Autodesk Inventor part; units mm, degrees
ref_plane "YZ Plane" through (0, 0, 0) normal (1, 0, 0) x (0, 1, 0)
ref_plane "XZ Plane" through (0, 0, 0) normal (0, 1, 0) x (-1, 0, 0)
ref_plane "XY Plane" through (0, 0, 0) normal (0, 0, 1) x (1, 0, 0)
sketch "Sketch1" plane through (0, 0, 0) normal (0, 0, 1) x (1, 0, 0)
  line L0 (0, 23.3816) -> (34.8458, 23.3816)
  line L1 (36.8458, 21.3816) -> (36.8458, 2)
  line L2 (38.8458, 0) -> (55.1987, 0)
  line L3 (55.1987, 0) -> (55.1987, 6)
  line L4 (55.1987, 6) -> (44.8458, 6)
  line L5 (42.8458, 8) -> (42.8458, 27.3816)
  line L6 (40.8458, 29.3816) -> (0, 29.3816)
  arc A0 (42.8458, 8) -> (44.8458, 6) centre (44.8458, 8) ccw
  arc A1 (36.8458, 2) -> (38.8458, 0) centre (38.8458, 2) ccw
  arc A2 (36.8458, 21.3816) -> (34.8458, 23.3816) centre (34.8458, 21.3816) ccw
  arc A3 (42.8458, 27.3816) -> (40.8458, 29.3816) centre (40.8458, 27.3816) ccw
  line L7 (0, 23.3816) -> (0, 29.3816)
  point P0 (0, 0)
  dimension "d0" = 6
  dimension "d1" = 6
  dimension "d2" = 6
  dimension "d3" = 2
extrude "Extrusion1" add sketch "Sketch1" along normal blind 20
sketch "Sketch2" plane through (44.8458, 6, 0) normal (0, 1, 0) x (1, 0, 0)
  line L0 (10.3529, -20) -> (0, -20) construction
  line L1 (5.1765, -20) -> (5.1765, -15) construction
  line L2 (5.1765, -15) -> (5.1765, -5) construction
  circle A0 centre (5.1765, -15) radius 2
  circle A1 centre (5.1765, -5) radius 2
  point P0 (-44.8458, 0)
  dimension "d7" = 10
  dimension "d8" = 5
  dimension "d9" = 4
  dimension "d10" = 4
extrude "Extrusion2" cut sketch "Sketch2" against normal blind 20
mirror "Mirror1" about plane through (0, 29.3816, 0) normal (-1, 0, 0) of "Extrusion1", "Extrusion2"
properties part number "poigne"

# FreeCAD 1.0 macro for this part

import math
import FreeCAD as App
import Part
import Sketcher
from FreeCAD import Vector
Q = App.Units.Quantity

doc = App.newDocument("Part")
body = doc.addObject("PartDesign::Body", "Body")

# Sketch on XY plane
sketch1 = body.newObject("Sketcher::SketchObject", "Sketch")
sketch1.AttachmentSupport = (doc.getObject("XY_Plane"), [""])
sketch1.MapMode = "FlatFace"
sketch1.addGeometry([
    Part.LineSegment(Vector(0, 29.3816, 0), Vector(0, 23.3816, 0)),  # 0
    Part.LineSegment(Vector(0, 23.3816, 0), Vector(34.8458, 23.3816, 0)),  # 1
    Part.ArcOfCircle(Part.Circle(Vector(34.8458, 21.3816, 0), Vector(0, 0, 1), 2), math.radians(0), math.radians(90)),  # 2
    Part.LineSegment(Vector(36.8458, 21.3816, 0), Vector(36.8458, 2, 0)),  # 3
    Part.ArcOfCircle(Part.Circle(Vector(38.8458, 2, 0), Vector(0, 0, 1), 2), math.radians(180), math.radians(270)),  # 4
    Part.LineSegment(Vector(38.8458, 0, 0), Vector(55.1987, 0, 0)),  # 5
    Part.LineSegment(Vector(55.1987, 0, 0), Vector(55.1987, 6, 0)),  # 6
    Part.LineSegment(Vector(55.1987, 6, 0), Vector(44.8458, 6, 0)),  # 7
    Part.ArcOfCircle(Part.Circle(Vector(44.8458, 8, 0), Vector(0, 0, 1), 2), math.radians(180), math.radians(270)),  # 8
    Part.LineSegment(Vector(42.8458, 8, 0), Vector(42.8458, 27.3816, 0)),  # 9
    Part.ArcOfCircle(Part.Circle(Vector(40.8458, 27.3816, 0), Vector(0, 0, 1), 2), math.radians(0), math.radians(90)),  # 10
    Part.LineSegment(Vector(40.8458, 29.3816, 0), Vector(0, 29.3816, 0)),  # 11
], False)
sketch1.addConstraint([
    Sketcher.Constraint("Coincident", 0, 2, 1, 1),
    Sketcher.Constraint("Tangent", 1, 2, 2, 2),
    Sketcher.Constraint("Tangent", 2, 1, 3, 1),
    Sketcher.Constraint("Tangent", 3, 2, 4, 1),
    Sketcher.Constraint("Tangent", 4, 2, 5, 1),
    Sketcher.Constraint("Coincident", 5, 2, 6, 1),
    Sketcher.Constraint("Coincident", 6, 2, 7, 1),
    Sketcher.Constraint("Tangent", 7, 2, 8, 2),
    Sketcher.Constraint("Tangent", 8, 1, 9, 1),
    Sketcher.Constraint("Tangent", 9, 2, 10, 1),
    Sketcher.Constraint("Tangent", 10, 2, 11, 1),
    Sketcher.Constraint("Coincident", 11, 2, 0, 1),
    Sketcher.Constraint("Vertical", 0),
    Sketcher.Constraint("Horizontal", 1),
    Sketcher.Constraint("Vertical", 3),
    Sketcher.Constraint("Horizontal", 5),
    Sketcher.Constraint("Vertical", 6),
    Sketcher.Constraint("Horizontal", 7),
    Sketcher.Constraint("Vertical", 9),
    Sketcher.Constraint("Horizontal", 11),
    Sketcher.Constraint("Equal", 2, 4),
    Sketcher.Constraint("Equal", 4, 8),
    Sketcher.Constraint("Equal", 8, 10),
    Sketcher.Constraint("PointOnObject", 0, 2, -2),
    Sketcher.Constraint("PointOnObject", 4, 2, -1),
    Sketcher.Constraint("Equal", 0, 6),
    Sketcher.Constraint("Radius", 2, Q("2 mm")),
    Sketcher.Constraint("DistanceY", 0, 2, 0, 1, Q("6 mm")),
    Sketcher.Constraint("DistanceX", 4, 3, 8, 3, Q("6 mm")),
    Sketcher.Constraint("DistanceX", 5, 1, 5, 2, Q("16.353 mm")),
    Sketcher.Constraint("DistanceX", 1, 1, 1, 2, Q("34.8458 mm")),
    Sketcher.Constraint("DistanceY", 3, 2, 3, 1, Q("19.3816 mm")),
])
pad1 = body.newObject("PartDesign::Pad", "Pad")
pad1.Profile = sketch1
pad1.Length = 20

# Sketch on XZ plane
sketch2 = body.newObject("Sketcher::SketchObject", "Sketch001")
sketch2.AttachmentSupport = (doc.getObject("XZ_Plane"), [""])
sketch2.MapMode = "FlatFace"
sketch2.AttachmentOffset = App.Placement(Vector(0, 0, -6), App.Rotation())
sketch2.addGeometry([
    Part.Circle(Vector(50.0223, 15, 0), Vector(0, 0, 1), 2),
    Part.Circle(Vector(50.0223, 5, 0), Vector(0, 0, 1), 2),
], False)
sketch2.addConstraint([
    Sketcher.Constraint("Equal", 0, 1),
    Sketcher.Constraint("Vertical", 0, 3, 1, 3),
    Sketcher.Constraint("Diameter", 0, Q("4 mm")),
    Sketcher.Constraint("DistanceY", -1, 1, 1, 3, Q("5 mm")),
    Sketcher.Constraint("DistanceY", 1, 3, 0, 3, Q("10 mm")),
    Sketcher.Constraint("DistanceX", -1, 1, 0, 3, Q("50.0223 mm")),
])
pocket1 = body.newObject("PartDesign::Pocket", "Pocket")
pocket1.Profile = sketch2
pocket1.Length = 20
pocket1.Reversed = True
doc.recompute()

mirrored = body.newObject("PartDesign::Mirrored", "Mirrored")
mirrored.Originals = [pad1, pocket1]
mirrored.MirrorPlane = (doc.getObject("YZ_Plane"), [""])
body.Tip = mirrored

doc.recompute()
